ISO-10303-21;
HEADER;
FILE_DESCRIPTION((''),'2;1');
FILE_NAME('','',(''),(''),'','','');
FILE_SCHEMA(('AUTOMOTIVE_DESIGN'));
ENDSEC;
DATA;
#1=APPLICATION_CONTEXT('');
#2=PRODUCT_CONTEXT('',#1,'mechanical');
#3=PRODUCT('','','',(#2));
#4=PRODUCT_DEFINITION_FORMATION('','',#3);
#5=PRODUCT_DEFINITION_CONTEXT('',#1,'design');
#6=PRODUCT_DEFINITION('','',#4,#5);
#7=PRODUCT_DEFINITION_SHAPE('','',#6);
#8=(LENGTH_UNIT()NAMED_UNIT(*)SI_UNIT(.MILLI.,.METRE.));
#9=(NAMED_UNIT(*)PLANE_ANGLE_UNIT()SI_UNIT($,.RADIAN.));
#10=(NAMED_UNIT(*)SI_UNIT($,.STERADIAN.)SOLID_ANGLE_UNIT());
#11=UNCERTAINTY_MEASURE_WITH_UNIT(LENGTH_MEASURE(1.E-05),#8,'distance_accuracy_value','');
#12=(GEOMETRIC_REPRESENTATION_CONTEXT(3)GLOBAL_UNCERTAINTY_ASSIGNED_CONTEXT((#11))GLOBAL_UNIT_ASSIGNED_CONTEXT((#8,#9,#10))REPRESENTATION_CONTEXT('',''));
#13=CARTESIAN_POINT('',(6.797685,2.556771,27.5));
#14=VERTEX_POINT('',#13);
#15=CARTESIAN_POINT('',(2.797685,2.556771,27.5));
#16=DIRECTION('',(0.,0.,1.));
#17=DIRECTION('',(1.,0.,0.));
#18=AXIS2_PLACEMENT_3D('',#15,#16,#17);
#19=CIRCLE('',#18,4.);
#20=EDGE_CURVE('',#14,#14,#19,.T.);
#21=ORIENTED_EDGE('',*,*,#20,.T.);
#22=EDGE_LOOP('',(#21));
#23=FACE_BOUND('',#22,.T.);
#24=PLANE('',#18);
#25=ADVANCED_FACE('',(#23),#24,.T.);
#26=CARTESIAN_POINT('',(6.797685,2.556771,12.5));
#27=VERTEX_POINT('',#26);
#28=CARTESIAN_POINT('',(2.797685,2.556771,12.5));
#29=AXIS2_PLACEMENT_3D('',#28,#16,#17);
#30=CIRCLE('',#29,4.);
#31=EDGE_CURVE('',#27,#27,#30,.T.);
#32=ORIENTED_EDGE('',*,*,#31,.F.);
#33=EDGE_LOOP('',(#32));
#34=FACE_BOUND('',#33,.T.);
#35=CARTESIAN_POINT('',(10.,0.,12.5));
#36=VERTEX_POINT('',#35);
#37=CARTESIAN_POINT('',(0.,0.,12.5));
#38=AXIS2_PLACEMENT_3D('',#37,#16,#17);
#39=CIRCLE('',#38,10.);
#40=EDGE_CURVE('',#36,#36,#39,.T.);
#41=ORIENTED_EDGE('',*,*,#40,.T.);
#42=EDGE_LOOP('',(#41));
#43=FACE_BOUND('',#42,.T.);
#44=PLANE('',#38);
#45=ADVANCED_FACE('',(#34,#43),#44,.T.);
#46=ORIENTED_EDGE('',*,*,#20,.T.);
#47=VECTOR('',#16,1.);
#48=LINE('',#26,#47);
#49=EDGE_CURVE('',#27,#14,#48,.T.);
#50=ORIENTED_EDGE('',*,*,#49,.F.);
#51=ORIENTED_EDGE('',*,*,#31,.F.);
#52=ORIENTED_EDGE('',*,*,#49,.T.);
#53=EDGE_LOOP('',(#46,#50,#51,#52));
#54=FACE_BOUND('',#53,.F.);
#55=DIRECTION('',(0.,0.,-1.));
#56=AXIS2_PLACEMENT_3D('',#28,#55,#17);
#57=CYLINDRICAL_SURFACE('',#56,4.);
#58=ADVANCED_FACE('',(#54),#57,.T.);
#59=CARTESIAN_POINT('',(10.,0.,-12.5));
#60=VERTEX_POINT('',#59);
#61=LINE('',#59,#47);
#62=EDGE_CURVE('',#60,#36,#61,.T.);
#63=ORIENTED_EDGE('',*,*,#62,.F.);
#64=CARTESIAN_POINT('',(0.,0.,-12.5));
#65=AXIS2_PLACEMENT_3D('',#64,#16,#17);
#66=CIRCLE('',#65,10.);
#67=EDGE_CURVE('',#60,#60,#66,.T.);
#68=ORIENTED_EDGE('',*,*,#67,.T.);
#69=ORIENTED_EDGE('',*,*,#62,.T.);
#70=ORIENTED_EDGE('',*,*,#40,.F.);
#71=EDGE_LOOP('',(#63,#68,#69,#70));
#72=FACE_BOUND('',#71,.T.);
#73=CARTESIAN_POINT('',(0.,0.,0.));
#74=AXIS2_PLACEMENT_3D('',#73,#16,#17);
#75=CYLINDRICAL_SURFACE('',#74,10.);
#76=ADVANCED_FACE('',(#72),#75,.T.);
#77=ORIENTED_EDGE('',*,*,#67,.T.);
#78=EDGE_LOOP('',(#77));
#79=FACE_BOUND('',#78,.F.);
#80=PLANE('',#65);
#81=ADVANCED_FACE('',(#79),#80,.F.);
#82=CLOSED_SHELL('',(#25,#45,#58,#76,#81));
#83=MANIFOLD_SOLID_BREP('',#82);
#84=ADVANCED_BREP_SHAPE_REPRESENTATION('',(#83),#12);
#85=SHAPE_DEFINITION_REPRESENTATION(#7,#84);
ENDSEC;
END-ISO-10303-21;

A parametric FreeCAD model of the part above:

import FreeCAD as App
import Part
import Sketcher

doc = App.newDocument("Part")
body = doc.addObject("PartDesign::Body", "Body")

sketch1 = body.newObject("Sketcher::SketchObject", "Sketch")
sketch1.AttachmentSupport = (doc.getObject("XY_Plane"), [""])
sketch1.MapMode = "FlatFace"
sketch1.addGeometry(Part.Circle(App.Vector(0, 0, 0), App.Vector(0, 0, 1), 10), False)
sketch1.addConstraint(Sketcher.Constraint("Coincident", 0, 3, -1, 1))
sketch1.addConstraint(Sketcher.Constraint("Diameter", 0, 20.0))
pad1 = body.newObject("PartDesign::Pad", "Pad")
pad1.Profile = sketch1
pad1.Length = 25
pad1.Midplane = True

sketch2 = body.newObject("Sketcher::SketchObject", "Sketch001")
sketch2.AttachmentSupport = (doc.getObject("XY_Plane"), [""])
sketch2.MapMode = "FlatFace"
sketch2.AttachmentOffset = App.Placement(App.Vector(0, 0, 12.5), App.Rotation())
sketch2.addGeometry(Part.Circle(App.Vector(2.797685, 2.556771, 0), App.Vector(0, 0, 1), 4), False)
sketch2.addConstraint(Sketcher.Constraint("Diameter", 0, 8.0))
sketch2.addConstraint(Sketcher.Constraint("DistanceY", -1, 1, 0, 3, 2.556771))
sketch2.addConstraint(Sketcher.Constraint("DistanceX", -1, 1, 0, 3, 2.797685))
pad2 = body.newObject("PartDesign::Pad", "Pad001")
pad2.Profile = sketch2
pad2.Length = 15

doc.recompute()
